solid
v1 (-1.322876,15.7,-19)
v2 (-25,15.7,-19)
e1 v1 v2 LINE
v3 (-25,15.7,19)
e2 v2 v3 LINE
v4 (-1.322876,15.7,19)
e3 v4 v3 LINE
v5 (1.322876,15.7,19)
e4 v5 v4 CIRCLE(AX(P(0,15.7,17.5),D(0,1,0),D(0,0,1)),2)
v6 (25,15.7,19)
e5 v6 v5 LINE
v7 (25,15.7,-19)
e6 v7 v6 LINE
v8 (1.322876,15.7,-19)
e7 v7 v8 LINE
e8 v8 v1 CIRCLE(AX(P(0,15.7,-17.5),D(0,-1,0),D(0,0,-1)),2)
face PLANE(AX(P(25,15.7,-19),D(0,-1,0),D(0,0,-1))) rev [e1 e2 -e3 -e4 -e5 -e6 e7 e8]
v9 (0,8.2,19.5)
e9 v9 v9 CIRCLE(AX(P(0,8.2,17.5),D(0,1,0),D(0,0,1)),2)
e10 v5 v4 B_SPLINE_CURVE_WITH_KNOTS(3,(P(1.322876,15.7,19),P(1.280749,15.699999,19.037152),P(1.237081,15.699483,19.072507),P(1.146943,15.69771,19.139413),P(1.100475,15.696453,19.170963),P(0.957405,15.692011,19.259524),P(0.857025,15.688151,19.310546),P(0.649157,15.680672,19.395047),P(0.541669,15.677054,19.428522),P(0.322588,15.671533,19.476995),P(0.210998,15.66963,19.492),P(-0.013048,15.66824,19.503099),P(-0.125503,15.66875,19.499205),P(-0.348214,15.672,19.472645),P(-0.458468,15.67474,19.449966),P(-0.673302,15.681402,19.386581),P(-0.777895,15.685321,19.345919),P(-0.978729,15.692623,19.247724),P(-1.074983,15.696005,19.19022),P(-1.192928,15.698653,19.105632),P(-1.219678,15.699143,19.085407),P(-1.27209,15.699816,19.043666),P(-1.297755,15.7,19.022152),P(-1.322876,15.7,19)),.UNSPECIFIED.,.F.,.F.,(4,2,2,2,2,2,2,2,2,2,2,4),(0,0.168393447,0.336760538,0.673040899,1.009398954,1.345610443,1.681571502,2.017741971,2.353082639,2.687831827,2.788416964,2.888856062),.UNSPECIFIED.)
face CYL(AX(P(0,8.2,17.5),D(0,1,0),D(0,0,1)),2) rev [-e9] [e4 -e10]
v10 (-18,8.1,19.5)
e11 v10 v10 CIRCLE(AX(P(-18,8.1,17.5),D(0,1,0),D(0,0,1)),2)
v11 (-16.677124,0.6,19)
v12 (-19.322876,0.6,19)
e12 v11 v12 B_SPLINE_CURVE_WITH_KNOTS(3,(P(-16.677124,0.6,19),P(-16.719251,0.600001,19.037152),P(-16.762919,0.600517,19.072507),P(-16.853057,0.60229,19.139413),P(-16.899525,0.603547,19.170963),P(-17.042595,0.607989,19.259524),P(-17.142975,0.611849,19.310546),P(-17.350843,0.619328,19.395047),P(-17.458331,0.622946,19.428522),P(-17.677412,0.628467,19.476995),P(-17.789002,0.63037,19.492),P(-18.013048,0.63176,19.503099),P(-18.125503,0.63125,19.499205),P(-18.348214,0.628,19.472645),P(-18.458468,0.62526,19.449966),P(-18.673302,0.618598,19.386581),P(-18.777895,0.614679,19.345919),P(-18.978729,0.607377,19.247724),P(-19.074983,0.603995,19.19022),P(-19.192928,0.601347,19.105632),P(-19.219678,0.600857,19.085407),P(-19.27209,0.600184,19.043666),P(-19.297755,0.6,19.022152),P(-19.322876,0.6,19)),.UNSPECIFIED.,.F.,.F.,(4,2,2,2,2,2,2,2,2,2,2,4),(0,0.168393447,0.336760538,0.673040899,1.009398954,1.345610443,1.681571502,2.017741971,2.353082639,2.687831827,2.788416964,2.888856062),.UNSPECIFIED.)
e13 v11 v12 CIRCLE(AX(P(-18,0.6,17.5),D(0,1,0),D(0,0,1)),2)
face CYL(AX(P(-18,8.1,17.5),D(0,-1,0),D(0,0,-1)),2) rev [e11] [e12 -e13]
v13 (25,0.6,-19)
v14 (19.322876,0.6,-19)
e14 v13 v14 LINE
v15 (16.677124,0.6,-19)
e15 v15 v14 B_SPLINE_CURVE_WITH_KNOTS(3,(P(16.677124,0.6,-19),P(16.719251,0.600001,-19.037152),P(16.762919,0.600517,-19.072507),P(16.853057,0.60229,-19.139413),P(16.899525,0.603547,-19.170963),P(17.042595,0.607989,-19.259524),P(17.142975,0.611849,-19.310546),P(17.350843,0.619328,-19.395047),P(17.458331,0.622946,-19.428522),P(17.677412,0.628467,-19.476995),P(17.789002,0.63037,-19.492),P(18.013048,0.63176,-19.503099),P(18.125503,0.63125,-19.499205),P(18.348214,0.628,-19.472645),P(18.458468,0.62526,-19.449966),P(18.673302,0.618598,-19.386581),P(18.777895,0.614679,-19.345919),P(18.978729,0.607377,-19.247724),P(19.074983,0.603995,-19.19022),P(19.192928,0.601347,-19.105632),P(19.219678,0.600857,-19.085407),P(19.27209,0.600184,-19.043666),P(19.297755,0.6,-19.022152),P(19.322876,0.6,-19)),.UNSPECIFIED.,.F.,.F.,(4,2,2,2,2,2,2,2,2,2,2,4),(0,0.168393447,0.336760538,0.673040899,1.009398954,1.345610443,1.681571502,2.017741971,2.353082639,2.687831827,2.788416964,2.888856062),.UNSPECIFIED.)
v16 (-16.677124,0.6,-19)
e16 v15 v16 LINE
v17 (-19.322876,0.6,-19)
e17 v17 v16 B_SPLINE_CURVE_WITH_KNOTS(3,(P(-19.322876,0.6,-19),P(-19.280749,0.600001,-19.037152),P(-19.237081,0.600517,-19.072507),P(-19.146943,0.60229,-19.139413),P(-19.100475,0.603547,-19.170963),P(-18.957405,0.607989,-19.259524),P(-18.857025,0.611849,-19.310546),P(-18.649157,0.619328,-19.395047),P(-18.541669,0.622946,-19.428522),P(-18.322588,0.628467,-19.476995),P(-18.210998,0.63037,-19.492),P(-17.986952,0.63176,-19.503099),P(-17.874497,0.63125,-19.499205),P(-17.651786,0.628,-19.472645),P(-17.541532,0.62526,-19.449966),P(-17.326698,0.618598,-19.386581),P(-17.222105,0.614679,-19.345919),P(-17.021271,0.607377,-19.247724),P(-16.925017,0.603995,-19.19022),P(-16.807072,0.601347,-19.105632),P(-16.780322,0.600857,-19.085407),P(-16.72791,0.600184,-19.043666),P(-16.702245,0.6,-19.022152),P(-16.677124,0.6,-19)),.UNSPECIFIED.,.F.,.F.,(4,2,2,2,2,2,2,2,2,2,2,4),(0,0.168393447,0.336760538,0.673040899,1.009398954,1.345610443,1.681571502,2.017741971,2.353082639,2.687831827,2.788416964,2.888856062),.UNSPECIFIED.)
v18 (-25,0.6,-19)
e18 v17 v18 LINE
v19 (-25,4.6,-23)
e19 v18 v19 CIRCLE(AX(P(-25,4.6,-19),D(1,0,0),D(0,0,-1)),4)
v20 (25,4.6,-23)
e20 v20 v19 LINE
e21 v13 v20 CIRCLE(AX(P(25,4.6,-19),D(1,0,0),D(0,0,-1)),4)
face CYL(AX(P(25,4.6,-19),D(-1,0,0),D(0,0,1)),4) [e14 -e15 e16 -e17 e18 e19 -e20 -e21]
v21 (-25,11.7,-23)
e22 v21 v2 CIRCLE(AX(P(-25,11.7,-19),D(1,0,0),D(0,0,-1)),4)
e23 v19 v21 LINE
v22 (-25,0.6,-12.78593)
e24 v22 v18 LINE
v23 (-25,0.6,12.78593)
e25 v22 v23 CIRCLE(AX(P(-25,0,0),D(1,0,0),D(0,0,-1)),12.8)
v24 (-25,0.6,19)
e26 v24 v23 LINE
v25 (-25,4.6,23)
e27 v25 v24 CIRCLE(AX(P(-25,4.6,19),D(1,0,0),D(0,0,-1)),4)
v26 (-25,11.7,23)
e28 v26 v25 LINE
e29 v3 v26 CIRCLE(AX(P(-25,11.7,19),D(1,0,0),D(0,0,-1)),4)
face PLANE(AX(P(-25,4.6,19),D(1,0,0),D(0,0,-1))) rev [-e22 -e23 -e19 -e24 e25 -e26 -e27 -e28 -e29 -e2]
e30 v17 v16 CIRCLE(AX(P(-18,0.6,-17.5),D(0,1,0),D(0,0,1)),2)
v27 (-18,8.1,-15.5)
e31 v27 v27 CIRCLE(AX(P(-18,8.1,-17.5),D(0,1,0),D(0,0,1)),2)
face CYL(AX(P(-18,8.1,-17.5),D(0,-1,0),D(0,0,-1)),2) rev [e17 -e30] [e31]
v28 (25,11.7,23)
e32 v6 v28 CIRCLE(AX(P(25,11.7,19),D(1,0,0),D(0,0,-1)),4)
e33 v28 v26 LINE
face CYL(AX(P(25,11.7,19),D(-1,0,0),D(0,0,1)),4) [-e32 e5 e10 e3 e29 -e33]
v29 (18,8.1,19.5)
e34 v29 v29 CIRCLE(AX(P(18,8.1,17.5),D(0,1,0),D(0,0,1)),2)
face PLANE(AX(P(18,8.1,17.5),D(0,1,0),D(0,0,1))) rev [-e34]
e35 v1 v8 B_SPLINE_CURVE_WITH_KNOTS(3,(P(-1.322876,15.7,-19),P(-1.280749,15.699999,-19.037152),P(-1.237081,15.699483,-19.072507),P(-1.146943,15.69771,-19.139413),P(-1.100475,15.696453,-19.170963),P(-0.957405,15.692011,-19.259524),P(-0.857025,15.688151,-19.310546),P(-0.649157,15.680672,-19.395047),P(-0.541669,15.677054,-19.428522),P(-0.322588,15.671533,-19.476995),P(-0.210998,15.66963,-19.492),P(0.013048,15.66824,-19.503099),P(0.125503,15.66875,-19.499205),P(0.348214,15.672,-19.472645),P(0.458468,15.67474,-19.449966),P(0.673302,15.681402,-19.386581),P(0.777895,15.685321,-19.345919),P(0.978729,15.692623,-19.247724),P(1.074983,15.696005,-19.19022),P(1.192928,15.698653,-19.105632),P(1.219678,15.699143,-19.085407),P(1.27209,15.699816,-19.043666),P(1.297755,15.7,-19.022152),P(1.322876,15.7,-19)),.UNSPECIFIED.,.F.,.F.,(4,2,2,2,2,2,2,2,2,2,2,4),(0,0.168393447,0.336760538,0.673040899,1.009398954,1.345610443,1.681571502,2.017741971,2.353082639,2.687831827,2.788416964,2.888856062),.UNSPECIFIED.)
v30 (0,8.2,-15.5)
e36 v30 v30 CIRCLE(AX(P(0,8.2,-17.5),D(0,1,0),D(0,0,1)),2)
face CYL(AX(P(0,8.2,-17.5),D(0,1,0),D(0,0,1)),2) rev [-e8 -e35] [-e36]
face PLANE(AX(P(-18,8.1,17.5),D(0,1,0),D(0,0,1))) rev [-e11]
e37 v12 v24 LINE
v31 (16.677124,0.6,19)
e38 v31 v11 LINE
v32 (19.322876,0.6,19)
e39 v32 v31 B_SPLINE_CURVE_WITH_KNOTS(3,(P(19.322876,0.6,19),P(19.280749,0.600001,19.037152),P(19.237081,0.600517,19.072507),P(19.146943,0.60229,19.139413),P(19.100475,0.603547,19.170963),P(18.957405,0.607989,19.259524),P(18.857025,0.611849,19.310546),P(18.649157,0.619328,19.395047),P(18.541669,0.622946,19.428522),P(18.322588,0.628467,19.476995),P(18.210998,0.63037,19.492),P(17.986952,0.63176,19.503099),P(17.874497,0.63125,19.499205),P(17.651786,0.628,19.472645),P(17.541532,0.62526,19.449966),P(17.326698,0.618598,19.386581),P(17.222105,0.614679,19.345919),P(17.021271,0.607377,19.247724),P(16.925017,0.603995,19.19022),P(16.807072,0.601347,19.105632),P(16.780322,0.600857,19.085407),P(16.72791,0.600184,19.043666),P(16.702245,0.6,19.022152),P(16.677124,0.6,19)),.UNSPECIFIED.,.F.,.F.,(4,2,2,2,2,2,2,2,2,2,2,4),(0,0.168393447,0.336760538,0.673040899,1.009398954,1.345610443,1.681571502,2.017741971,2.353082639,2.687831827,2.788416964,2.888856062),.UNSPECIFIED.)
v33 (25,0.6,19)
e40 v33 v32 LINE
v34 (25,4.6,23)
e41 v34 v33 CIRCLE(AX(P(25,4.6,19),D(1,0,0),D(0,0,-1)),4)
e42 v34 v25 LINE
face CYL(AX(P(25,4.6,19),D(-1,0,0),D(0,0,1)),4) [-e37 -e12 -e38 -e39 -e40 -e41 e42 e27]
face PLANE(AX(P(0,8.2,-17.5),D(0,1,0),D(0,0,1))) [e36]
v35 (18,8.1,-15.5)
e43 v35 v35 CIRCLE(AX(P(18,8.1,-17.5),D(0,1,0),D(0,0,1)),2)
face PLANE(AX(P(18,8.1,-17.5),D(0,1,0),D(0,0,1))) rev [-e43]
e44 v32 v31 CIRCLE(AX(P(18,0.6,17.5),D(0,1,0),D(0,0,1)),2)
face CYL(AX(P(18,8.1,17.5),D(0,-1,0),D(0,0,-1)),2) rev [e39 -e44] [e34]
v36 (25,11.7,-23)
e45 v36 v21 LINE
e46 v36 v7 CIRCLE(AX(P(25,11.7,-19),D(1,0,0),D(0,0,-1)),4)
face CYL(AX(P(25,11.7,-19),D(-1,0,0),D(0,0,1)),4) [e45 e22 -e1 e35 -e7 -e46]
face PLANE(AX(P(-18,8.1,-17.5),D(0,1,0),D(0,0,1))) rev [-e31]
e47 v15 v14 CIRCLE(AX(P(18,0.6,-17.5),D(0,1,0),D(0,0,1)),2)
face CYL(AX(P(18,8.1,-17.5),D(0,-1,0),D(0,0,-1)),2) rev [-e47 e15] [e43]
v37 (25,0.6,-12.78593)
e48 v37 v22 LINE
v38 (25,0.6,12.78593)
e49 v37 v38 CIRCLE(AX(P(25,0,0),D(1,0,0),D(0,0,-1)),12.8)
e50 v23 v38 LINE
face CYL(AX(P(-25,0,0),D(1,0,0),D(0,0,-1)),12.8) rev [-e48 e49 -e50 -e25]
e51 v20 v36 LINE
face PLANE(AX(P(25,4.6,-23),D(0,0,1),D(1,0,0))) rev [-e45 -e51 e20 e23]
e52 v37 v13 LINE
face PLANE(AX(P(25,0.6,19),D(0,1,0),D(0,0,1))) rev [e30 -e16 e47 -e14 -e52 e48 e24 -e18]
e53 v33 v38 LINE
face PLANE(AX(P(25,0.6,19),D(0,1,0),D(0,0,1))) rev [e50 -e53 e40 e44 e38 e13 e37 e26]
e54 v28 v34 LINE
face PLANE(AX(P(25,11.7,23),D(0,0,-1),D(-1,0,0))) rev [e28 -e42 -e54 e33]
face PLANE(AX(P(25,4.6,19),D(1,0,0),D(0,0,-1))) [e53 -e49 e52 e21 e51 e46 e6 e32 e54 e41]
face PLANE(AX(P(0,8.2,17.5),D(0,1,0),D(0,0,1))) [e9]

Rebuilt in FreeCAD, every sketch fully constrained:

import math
import FreeCAD as App
import Part
import Sketcher
Q = App.Units.Quantity

doc = App.newDocument("Part")
body = doc.addObject("PartDesign::Body", "Body")

# Sketch on YZ plane
sketch1 = body.newObject("Sketcher::SketchObject", "Sketch")
sketch1.AttachmentSupport = (doc.getObject("YZ_Plane"), [""])
sketch1.MapMode = "FlatFace"
sketch1.addGeometry([
    Part.LineSegment(App.Vector(0.6, 19, 0), App.Vector(0.6, -19, 0)),  # 0
    Part.ArcOfCircle(Part.Circle(App.Vector(4.6, -19, 0), App.Vector(0, 0, 1), 4), math.radians(180), math.radians(270)),  # 1
    Part.LineSegment(App.Vector(4.6, -23, 0), App.Vector(11.7, -23, 0)),  # 2
    Part.ArcOfCircle(Part.Circle(App.Vector(11.7, -19, 0), App.Vector(0, 0, 1), 4), math.radians(-90), math.radians(0)),  # 3
    Part.LineSegment(App.Vector(15.7, -19, 0), App.Vector(15.7, 19, 0)),  # 4
    Part.ArcOfCircle(Part.Circle(App.Vector(11.7, 19, 0), App.Vector(0, 0, 1), 4), math.radians(0), math.radians(90)),  # 5
    Part.LineSegment(App.Vector(11.7, 23, 0), App.Vector(4.6, 23, 0)),  # 6
    Part.ArcOfCircle(Part.Circle(App.Vector(4.6, 19, 0), App.Vector(0, 0, 1), 4), math.radians(90), math.radians(180)),  # 7
], False)
sketch1.addConstraint([
    Sketcher.Constraint("Tangent", 0, 2, 1, 1),
    Sketcher.Constraint("Tangent", 1, 2, 2, 1),
    Sketcher.Constraint("Tangent", 2, 2, 3, 1),
    Sketcher.Constraint("Tangent", 3, 2, 4, 1),
    Sketcher.Constraint("Tangent", 4, 2, 5, 1),
    Sketcher.Constraint("Tangent", 5, 2, 6, 1),
    Sketcher.Constraint("Tangent", 6, 2, 7, 1),
    Sketcher.Constraint("Tangent", 7, 2, 0, 1),
    Sketcher.Constraint("Vertical", 0),
    Sketcher.Constraint("Horizontal", 2),
    Sketcher.Constraint("Vertical", 4),
    Sketcher.Constraint("Horizontal", 6),
    Sketcher.Constraint("Equal", 1, 3),
    Sketcher.Constraint("Equal", 3, 5),
    Sketcher.Constraint("Equal", 5, 7),
    Sketcher.Constraint("Radius", 1, Q("4 mm")),
    Sketcher.Constraint("DistanceY", 0, 2, 0, 1, Q("38 mm")),
    Sketcher.Constraint("DistanceX", 2, 1, 2, 2, Q("7.1 mm")),
    Sketcher.Constraint("DistanceY", 1, 3, -1, 1, Q("19 mm")),
    Sketcher.Constraint("DistanceX", -1, 1, 1, 3, Q("4.6 mm")),
])
pad1 = body.newObject("PartDesign::Pad", "Pad")
pad1.Profile = sketch1
pad1.Length = 50
pad1.Midplane = True

# Sketch on YZ plane
sketch2 = body.newObject("Sketcher::SketchObject", "Sketch001")
sketch2.AttachmentSupport = (doc.getObject("YZ_Plane"), [""])
sketch2.MapMode = "FlatFace"
sketch2.addGeometry(Part.Circle(App.Vector(0, 0, 0), App.Vector(0, 0, 1), 13), False)
sketch2.addConstraint([
    Sketcher.Constraint("Coincident", 0, 3, -1, 1),
    Sketcher.Constraint("Diameter", 0, Q("25.6 mm")),
])
pocket1 = body.newObject("PartDesign::Pocket", "Pocket")
pocket1.Profile = sketch2
pocket1.Type = "ThroughAll"
pocket1.Midplane = True

# Sketch on XZ plane
sketch3 = body.newObject("Sketcher::SketchObject", "Sketch002")
sketch3.AttachmentSupport = (doc.getObject("XZ_Plane"), [""])
sketch3.MapMode = "FlatFace"
sketch3.AttachmentOffset = App.Placement(App.Vector(0, 0, -0.6), App.Rotation())
sketch3.addGeometry([
    Part.Circle(App.Vector(18, 17.5, 0), App.Vector(0, 0, 1), 2),
    Part.Circle(App.Vector(18, -17.5, 0), App.Vector(0, 0, 1), 2),
    Part.Circle(App.Vector(-18, 17.5, 0), App.Vector(0, 0, 1), 2),
    Part.Circle(App.Vector(-18, -17.5, 0), App.Vector(0, 0, 1), 2),
], False)
sketch3.addConstraint([
    Sketcher.Constraint("Equal", 0, 1),
    Sketcher.Constraint("Equal", 1, 2),
    Sketcher.Constraint("Equal", 2, 3),
    Sketcher.Constraint("Symmetric", 1, 3, 2, 3, -1, 1),
    Sketcher.Constraint("Symmetric", 0, 3, 3, 3, -1, 1),
    Sketcher.Constraint("Symmetric", 0, 3, 2, 3, -2),
    Sketcher.Constraint("Diameter", 0, Q("4 mm")),
    Sketcher.Constraint("DistanceX", -1, 1, 0, 3, Q("18 mm")),
    Sketcher.Constraint("DistanceY", 1, 3, 0, 3, Q("35 mm")),
])
pocket2 = body.newObject("PartDesign::Pocket", "Pocket001")
pocket2.Profile = sketch3
pocket2.Length = 7.5

# Sketch on XZ plane
sketch4 = body.newObject("Sketcher::SketchObject", "Sketch003")
sketch4.AttachmentSupport = (doc.getObject("XZ_Plane"), [""])
sketch4.MapMode = "FlatFace"
sketch4.AttachmentOffset = App.Placement(App.Vector(0, 0, -15.7), App.Rotation())
sketch4.addGeometry([
    Part.Circle(App.Vector(0, 17.5, 0), App.Vector(0, 0, 1), 2),
    Part.Circle(App.Vector(0, -17.5, 0), App.Vector(0, 0, 1), 2),
], False)
sketch4.addConstraint([
    Sketcher.Constraint("Equal", 0, 1),
    Sketcher.Constraint("Symmetric", 0, 3, 1, 3, -1, 1),
    Sketcher.Constraint("PointOnObject", 0, 3, -2),
    Sketcher.Constraint("Diameter", 0, Q("4 mm")),
    Sketcher.Constraint("DistanceY", 1, 3, 0, 3, Q("35 mm")),
])
pocket3 = body.newObject("PartDesign::Pocket", "Pocket002")
pocket3.Profile = sketch4
pocket3.Length = 7.5
pocket3.Reversed = True

doc.recompute()
